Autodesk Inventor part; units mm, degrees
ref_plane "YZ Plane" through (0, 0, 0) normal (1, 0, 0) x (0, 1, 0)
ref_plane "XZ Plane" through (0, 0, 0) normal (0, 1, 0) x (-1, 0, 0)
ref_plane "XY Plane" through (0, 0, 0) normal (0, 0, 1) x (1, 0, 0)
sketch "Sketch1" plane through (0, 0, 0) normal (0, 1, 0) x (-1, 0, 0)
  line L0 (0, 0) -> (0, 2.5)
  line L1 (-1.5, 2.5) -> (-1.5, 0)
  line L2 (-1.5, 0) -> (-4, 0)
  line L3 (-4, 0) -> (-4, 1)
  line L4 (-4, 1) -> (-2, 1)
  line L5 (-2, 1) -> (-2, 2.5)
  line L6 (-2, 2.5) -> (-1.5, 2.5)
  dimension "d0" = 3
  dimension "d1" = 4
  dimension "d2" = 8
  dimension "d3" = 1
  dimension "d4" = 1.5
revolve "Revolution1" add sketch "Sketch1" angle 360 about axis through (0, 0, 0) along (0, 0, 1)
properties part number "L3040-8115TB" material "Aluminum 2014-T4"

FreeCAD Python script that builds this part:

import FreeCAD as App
import Part
import Sketcher
from FreeCAD import Vector
Q = App.Units.Quantity

doc = App.newDocument("Part")
params = doc.addObject("Spreadsheet::Sheet", "Params")
for row, (alias, value) in enumerate([
    ("sketch1_height", "1 mm"),
    ("sketch1_height2", "1.5 mm"),
    ("sketch1_width", "2 mm"),
    ("revolution_angle", "360 deg"),
], start=1):
    params.set(f"A{row}", alias)
    params.set(f"B{row}", "=" + value)
    params.setAlias(f"B{row}", alias)

body = doc.addObject("PartDesign::Body", "Body")

sketch1 = body.newObject("Sketcher::SketchObject", "Sketch")
sketch1.AttachmentSupport = (doc.getObject("XZ_Plane"), [""])
sketch1.MapMode = "FlatFace"
sketch1.addGeometry([
    Part.LineSegment(Vector(1.5, 0, 0), Vector(1.5, 2.5, 0)),
    Part.LineSegment(Vector(1.5, 2.5, 0), Vector(2, 2.5, 0)),
    Part.LineSegment(Vector(2, 2.5, 0), Vector(2, 1, 0)),
    Part.LineSegment(Vector(2, 1, 0), Vector(4, 1, 0)),
    Part.LineSegment(Vector(4, 1, 0), Vector(4, 0, 0)),
    Part.LineSegment(Vector(4, 0, 0), Vector(1.5, 0, 0)),
], False)
sketch1.addConstraint([
    Sketcher.Constraint("Coincident", 0, 2, 1, 1),
    Sketcher.Constraint("Coincident", 1, 2, 2, 1),
    Sketcher.Constraint("Coincident", 2, 2, 3, 1),
    Sketcher.Constraint("Coincident", 3, 2, 4, 1),
    Sketcher.Constraint("Coincident", 4, 2, 5, 1),
    Sketcher.Constraint("Coincident", 5, 2, 0, 1),
    Sketcher.Constraint("Vertical", 0),
    Sketcher.Constraint("Horizontal", 1),
    Sketcher.Constraint("Vertical", 2),
    Sketcher.Constraint("Horizontal", 3),
    Sketcher.Constraint("Vertical", 4),
    Sketcher.Constraint("Horizontal", 5),
    Sketcher.Constraint("PointOnObject", 4, 2, -1),
    Sketcher.Constraint("Equal", 5, 0),
    Sketcher.Constraint("DistanceY", 4, 2, 4, 1, Q("1 mm")),
    Sketcher.Constraint("DistanceY", 2, 2, 2, 1, Q("1.5 mm")),
    Sketcher.Constraint("DistanceX", -1, 1, 3, 2, Q("4 mm")),
    Sketcher.Constraint("DistanceX", 3, 1, 3, 2, Q("2 mm")),
])
sketch1.setExpression("Constraints[14]", "Params.sketch1_height")
sketch1.setExpression("Constraints[15]", "Params.sketch1_height2")
sketch1.setExpression("Constraints[17]", "Params.sketch1_width")
revolution = body.newObject("PartDesign::Revolution", "Revolution")
revolution.Profile = sketch1
revolution.ReferenceAxis = (sketch1, ["V_Axis"])
revolution.setExpression("Angle", "Params.revolution_angle")

doc.recompute()
